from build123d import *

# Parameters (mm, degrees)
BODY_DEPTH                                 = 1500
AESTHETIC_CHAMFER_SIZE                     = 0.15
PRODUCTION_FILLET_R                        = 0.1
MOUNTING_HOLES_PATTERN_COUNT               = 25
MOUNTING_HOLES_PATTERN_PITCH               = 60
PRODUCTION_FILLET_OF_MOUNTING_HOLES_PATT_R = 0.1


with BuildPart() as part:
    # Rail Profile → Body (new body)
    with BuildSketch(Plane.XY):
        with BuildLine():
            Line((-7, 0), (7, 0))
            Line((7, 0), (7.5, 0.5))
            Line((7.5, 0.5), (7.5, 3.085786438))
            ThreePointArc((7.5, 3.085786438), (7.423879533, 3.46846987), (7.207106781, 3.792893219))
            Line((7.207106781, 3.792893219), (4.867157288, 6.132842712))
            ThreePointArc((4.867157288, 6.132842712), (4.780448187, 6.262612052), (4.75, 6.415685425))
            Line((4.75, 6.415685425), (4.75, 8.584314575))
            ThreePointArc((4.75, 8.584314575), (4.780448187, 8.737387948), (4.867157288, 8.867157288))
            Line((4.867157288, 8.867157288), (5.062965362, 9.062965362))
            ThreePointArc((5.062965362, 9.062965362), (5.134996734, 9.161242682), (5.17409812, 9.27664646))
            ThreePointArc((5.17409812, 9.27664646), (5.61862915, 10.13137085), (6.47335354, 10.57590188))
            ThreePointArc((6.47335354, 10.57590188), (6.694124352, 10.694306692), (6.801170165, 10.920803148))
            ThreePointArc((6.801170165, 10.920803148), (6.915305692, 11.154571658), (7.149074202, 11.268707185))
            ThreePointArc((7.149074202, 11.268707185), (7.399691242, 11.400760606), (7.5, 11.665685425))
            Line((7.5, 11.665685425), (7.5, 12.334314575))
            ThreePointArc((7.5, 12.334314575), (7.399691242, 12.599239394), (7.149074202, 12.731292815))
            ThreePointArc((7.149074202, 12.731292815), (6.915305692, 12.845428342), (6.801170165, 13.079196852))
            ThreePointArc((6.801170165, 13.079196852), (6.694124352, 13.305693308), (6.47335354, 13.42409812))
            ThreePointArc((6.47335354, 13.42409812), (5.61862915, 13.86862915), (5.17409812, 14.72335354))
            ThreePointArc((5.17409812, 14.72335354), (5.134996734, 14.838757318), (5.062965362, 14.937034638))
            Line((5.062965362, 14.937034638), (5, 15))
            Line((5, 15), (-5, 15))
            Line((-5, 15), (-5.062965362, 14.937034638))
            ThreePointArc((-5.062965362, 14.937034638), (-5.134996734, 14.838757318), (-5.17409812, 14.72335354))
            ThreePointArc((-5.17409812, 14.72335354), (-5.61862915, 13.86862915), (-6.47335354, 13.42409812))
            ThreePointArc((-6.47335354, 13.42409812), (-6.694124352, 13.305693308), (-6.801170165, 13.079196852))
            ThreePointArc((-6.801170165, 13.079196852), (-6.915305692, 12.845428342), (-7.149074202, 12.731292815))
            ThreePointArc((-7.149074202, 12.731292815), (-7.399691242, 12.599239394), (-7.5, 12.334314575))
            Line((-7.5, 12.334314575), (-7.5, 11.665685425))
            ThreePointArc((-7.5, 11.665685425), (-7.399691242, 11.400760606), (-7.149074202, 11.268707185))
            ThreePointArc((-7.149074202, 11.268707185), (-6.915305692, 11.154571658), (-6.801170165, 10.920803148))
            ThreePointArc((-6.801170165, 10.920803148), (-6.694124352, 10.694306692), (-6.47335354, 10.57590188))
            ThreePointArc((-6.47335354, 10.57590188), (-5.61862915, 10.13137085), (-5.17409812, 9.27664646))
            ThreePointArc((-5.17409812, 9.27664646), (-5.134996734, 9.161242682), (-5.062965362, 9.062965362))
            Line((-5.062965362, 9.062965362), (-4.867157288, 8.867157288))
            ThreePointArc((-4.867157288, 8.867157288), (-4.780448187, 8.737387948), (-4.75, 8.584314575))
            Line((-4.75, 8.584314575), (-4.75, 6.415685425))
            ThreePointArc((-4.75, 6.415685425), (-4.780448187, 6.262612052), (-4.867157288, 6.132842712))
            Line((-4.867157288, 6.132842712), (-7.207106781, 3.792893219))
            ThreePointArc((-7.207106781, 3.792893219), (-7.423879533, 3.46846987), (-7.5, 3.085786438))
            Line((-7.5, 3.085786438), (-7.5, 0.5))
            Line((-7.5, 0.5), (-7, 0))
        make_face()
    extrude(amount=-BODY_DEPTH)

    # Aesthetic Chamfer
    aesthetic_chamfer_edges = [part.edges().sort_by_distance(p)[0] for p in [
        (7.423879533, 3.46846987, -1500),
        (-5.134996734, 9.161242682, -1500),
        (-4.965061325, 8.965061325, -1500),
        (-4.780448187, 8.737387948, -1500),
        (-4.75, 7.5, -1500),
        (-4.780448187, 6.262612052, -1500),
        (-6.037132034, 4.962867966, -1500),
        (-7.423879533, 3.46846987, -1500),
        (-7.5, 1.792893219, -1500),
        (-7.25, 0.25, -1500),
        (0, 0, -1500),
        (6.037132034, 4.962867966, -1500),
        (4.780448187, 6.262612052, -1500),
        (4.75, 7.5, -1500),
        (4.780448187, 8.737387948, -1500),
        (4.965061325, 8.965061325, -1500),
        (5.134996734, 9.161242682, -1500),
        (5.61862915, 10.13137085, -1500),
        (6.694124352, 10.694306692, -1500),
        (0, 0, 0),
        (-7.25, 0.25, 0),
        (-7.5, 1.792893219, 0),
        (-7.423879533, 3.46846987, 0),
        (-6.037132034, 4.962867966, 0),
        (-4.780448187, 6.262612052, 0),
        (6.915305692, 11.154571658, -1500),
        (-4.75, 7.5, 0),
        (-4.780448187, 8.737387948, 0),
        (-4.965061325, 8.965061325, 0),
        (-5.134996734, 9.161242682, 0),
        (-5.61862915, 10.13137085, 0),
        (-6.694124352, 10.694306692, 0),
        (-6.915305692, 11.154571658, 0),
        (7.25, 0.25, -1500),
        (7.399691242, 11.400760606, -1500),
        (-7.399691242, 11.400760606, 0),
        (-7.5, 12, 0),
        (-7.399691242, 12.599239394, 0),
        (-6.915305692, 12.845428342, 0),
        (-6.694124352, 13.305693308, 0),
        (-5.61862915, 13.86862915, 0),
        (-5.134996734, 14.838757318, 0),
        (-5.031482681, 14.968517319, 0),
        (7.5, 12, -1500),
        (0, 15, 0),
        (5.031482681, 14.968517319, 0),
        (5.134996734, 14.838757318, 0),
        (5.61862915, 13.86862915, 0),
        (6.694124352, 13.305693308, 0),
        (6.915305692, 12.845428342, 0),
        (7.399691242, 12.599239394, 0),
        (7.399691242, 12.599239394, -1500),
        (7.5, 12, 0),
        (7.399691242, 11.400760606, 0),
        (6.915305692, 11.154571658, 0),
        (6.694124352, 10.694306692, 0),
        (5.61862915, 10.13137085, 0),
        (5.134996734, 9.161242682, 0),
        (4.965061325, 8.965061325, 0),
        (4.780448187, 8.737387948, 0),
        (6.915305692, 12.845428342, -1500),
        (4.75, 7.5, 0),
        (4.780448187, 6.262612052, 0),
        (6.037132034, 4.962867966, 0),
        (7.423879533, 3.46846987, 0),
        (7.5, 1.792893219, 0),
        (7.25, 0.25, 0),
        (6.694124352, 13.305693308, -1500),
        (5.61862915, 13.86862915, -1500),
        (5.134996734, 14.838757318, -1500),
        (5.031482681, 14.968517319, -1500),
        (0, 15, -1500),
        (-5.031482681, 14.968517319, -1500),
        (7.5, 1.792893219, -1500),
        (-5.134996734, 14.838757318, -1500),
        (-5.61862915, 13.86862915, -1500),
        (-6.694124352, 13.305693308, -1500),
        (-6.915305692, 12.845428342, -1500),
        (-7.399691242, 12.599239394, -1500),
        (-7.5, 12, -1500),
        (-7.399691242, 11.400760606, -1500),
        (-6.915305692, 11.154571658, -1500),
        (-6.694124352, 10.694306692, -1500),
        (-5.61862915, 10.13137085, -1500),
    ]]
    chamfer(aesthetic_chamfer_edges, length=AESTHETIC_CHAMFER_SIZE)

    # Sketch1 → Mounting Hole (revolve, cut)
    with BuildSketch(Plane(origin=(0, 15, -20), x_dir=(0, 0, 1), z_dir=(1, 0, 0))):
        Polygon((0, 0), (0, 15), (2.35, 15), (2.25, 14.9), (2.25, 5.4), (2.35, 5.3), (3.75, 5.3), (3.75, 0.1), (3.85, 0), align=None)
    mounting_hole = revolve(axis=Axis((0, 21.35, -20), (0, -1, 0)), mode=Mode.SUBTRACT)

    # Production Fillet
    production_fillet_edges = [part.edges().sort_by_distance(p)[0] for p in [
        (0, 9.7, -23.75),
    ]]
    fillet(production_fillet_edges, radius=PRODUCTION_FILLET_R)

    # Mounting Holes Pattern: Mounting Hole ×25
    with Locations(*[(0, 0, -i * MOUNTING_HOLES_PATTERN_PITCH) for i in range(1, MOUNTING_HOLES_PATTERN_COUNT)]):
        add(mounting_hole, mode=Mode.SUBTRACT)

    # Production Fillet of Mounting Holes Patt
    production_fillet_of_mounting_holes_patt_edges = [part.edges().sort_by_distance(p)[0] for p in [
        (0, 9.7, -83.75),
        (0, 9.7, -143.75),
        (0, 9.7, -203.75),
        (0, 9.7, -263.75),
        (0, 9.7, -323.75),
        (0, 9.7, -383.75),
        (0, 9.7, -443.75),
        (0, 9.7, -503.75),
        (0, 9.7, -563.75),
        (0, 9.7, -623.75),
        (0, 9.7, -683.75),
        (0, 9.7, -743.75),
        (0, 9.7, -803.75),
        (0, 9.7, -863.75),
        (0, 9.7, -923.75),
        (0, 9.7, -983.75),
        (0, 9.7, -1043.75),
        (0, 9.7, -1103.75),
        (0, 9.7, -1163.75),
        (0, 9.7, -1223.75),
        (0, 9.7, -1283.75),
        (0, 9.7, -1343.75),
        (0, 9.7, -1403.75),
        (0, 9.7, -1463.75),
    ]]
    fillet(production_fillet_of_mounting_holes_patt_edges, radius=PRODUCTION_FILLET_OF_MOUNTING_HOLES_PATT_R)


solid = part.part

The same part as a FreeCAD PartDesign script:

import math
import FreeCAD as App
import Part
import Sketcher
from FreeCAD import Vector


def edges_at(feature, points):
    """Names of the edges that pass closest to the given points."""
    edges = feature.Shape.Edges
    near = lambda p: min(range(len(edges)), key=lambda i: edges[i].distToShape(Part.Vertex(*p))[0])
    return sorted({f"Edge{near(p) + 1}" for p in points})


def add_polygon(sketch, points):
    """Adds a closed chain of lines whose ends are joined by coincident constraints."""
    first, n = sketch.GeometryCount, len(points)
    for a, b in zip(points, points[1:] + points[:1]):
        sketch.addGeometry(Part.LineSegment(App.Vector(*a, 0), App.Vector(*b, 0)), False)
    for i in range(n):
        sketch.addConstraint(Sketcher.Constraint("Coincident", first + i, 2, first + (i + 1) % n, 1))

doc = App.newDocument("Part")
body = doc.addObject("PartDesign::Body", "Body")

# Sketch on XY plane
sketch1 = body.newObject("Sketcher::SketchObject", "Sketch")
sketch1.AttachmentSupport = (doc.getObject("XY_Plane"), [""])
sketch1.MapMode = "FlatFace"
sketch1.addGeometry([
    Part.LineSegment(Vector(-7, 0, 0), Vector(7, 0, 0)),  # 0
    Part.LineSegment(Vector(7, 0, 0), Vector(7.5, 0.5, 0)),  # 1
    Part.LineSegment(Vector(7.5, 0.5, 0), Vector(7.5, 3.09, 0)),  # 2
    Part.ArcOfCircle(Part.Circle(Vector(6.5, 3.09, 0), Vector(0, 0, 1), 1), math.radians(0), math.radians(45)),  # 3
    Part.LineSegment(Vector(7.21, 3.79, 0), Vector(4.87, 6.13, 0)),  # 4
    Part.ArcOfCircle(Part.Circle(Vector(5.15, 6.42, 0), Vector(0, 0, 1), 0.4), math.radians(180), math.radians(225)),  # 5
    Part.LineSegment(Vector(4.75, 6.42, 0), Vector(4.75, 8.58, 0)),  # 6
    Part.ArcOfCircle(Part.Circle(Vector(5.15, 8.58, 0), Vector(0, 0, 1), 0.4), math.radians(135), math.radians(180)),  # 7
    Part.LineSegment(Vector(4.87, 8.87, 0), Vector(5.06, 9.06, 0)),  # 8
    Part.ArcOfCircle(Part.Circle(Vector(4.78, 9.35, 0), Vector(0, 0, 1), 0.4), math.radians(-45), math.radians(-10)),  # 9
    Part.ArcOfCircle(Part.Circle(Vector(6.75, 9, 0), Vector(0, 0, 1), 1.6), math.radians(100), math.radians(170)),  # 10
    Part.ArcOfCircle(Part.Circle(Vector(6.4, 10.97, 0), Vector(0, 0, 1), 0.4), math.radians(-80), math.radians(-7)),  # 11
    Part.ArcOfCircle(Part.Circle(Vector(7.2, 10.87, 0), Vector(0, 0, 1), 0.4), math.radians(97), math.radians(173)),  # 12
    Part.ArcOfCircle(Part.Circle(Vector(7.1, 11.67, 0), Vector(0, 0, 1), 0.4), math.radians(-83), math.radians(0)),  # 13
    Part.LineSegment(Vector(7.5, 11.67, 0), Vector(7.5, 12.33, 0)),  # 14
    Part.ArcOfCircle(Part.Circle(Vector(7.1, 12.33, 0), Vector(0, 0, 1), 0.4), math.radians(0), math.radians(83)),  # 15
    Part.ArcOfCircle(Part.Circle(Vector(7.2, 13.13, 0), Vector(0, 0, 1), 0.4), math.radians(-173), math.radians(-97)),  # 16
    Part.ArcOfCircle(Part.Circle(Vector(6.4, 13.03, 0), Vector(0, 0, 1), 0.4), math.radians(7), math.radians(80)),  # 17
    Part.ArcOfCircle(Part.Circle(Vector(6.75, 15, 0), Vector(0, 0, 1), 1.6), math.radians(-170), math.radians(-100)),  # 18
    Part.ArcOfCircle(Part.Circle(Vector(4.78, 14.65, 0), Vector(0, 0, 1), 0.4), math.radians(10), math.radians(45)),  # 19
    Part.LineSegment(Vector(5.06, 14.94, 0), Vector(5, 15, 0)),  # 20
    Part.LineSegment(Vector(5, 15, 0), Vector(-5, 15, 0)),  # 21
    Part.LineSegment(Vector(-5, 15, 0), Vector(-5.06, 14.94, 0)),  # 22
    Part.ArcOfCircle(Part.Circle(Vector(-4.78, 14.65, 0), Vector(0, 0, 1), 0.4), math.radians(135), math.radians(170)),  # 23
    Part.ArcOfCircle(Part.Circle(Vector(-6.75, 15, 0), Vector(0, 0, 1), 1.6), math.radians(-80), math.radians(-10)),  # 24
    Part.ArcOfCircle(Part.Circle(Vector(-6.4, 13.03, 0), Vector(0, 0, 1), 0.4), math.radians(100), math.radians(173)),  # 25
    Part.ArcOfCircle(Part.Circle(Vector(-7.2, 13.13, 0), Vector(0, 0, 1), 0.4), math.radians(-83), math.radians(-7)),  # 26
    Part.ArcOfCircle(Part.Circle(Vector(-7.1, 12.33, 0), Vector(0, 0, 1), 0.4), math.radians(97), math.radians(180)),  # 27
    Part.LineSegment(Vector(-7.5, 12.33, 0), Vector(-7.5, 11.67, 0)),  # 28
    Part.ArcOfCircle(Part.Circle(Vector(-7.1, 11.67, 0), Vector(0, 0, 1), 0.4), math.radians(180), math.radians(263)),  # 29
    Part.ArcOfCircle(Part.Circle(Vector(-7.2, 10.87, 0), Vector(0, 0, 1), 0.4), math.radians(7), math.radians(83)),  # 30
    Part.ArcOfCircle(Part.Circle(Vector(-6.4, 10.97, 0), Vector(0, 0, 1), 0.4), math.radians(-173), math.radians(-100)),  # 31
    Part.ArcOfCircle(Part.Circle(Vector(-6.75, 9, 0), Vector(0, 0, 1), 1.6), math.radians(10), math.radians(80)),  # 32
    Part.ArcOfCircle(Part.Circle(Vector(-4.78, 9.35, 0), Vector(0, 0, 1), 0.4), math.radians(-170), math.radians(-135)),  # 33
    Part.LineSegment(Vector(-5.06, 9.06, 0), Vector(-4.87, 8.87, 0)),  # 34
    Part.ArcOfCircle(Part.Circle(Vector(-5.15, 8.58, 0), Vector(0, 0, 1), 0.4), math.radians(0), math.radians(45)),  # 35
    Part.LineSegment(Vector(-4.75, 8.58, 0), Vector(-4.75, 6.42, 0)),  # 36
    Part.ArcOfCircle(Part.Circle(Vector(-5.15, 6.42, 0), Vector(0, 0, 1), 0.4), math.radians(-45), math.radians(0)),  # 37
    Part.LineSegment(Vector(-4.87, 6.13, 0), Vector(-7.21, 3.79, 0)),  # 38
    Part.ArcOfCircle(Part.Circle(Vector(-6.5, 3.09, 0), Vector(0, 0, 1), 1), math.radians(135), math.radians(180)),  # 39
    Part.LineSegment(Vector(-7.5, 3.09, 0), Vector(-7.5, 0.5, 0)),  # 40
    Part.LineSegment(Vector(-7.5, 0.5, 0), Vector(-7, 0, 0)),  # 41
], False)
sketch1.addConstraint([
    Sketcher.Constraint("Coincident", 0, 2, 1, 1),
    Sketcher.Constraint("Coincident", 1, 2, 2, 1),
    Sketcher.Constraint("Tangent", 2, 2, 3, 1),
    Sketcher.Constraint("Tangent", 3, 2, 4, 1),
    Sketcher.Constraint("Tangent", 4, 2, 5, 2),
    Sketcher.Constraint("Tangent", 5, 1, 6, 1),
    Sketcher.Constraint("Tangent", 6, 2, 7, 2),
    Sketcher.Constraint("Tangent", 7, 1, 8, 1),
    Sketcher.Constraint("Tangent", 8, 2, 9, 1),
    Sketcher.Constraint("Tangent", 9, 2, 10, 2),
    Sketcher.Constraint("Tangent", 10, 1, 11, 1),
    Sketcher.Constraint("Tangent", 11, 2, 12, 2),
    Sketcher.Constraint("Tangent", 12, 1, 13, 1),
    Sketcher.Constraint("Tangent", 13, 2, 14, 1),
    Sketcher.Constraint("Tangent", 14, 2, 15, 1),
    Sketcher.Constraint("Tangent", 15, 2, 16, 2),
    Sketcher.Constraint("Tangent", 16, 1, 17, 1),
    Sketcher.Constraint("Tangent", 17, 2, 18, 2),
    Sketcher.Constraint("Tangent", 18, 1, 19, 1),
    Sketcher.Constraint("Tangent", 19, 2, 20, 1),
    Sketcher.Constraint("Coincident", 20, 2, 21, 1),
    Sketcher.Constraint("Coincident", 21, 2, 22, 1),
    Sketcher.Constraint("Tangent", 22, 2, 23, 1),
    Sketcher.Constraint("Tangent", 23, 2, 24, 2),
    Sketcher.Constraint("Tangent", 24, 1, 25, 1),
    Sketcher.Constraint("Tangent", 25, 2, 26, 2),
    Sketcher.Constraint("Tangent", 26, 1, 27, 1),
    Sketcher.Constraint("Tangent", 27, 2, 28, 1),
    Sketcher.Constraint("Tangent", 28, 2, 29, 1),
    Sketcher.Constraint("Tangent", 29, 2, 30, 2),
    Sketcher.Constraint("Tangent", 30, 1, 31, 1),
    Sketcher.Constraint("Tangent", 31, 2, 32, 2),
    Sketcher.Constraint("Tangent", 32, 1, 33, 1),
    Sketcher.Constraint("Tangent", 33, 2, 34, 1),
    Sketcher.Constraint("Tangent", 34, 2, 35, 2),
    Sketcher.Constraint("Tangent", 35, 1, 36, 1),
    Sketcher.Constraint("Tangent", 36, 2, 37, 2),
    Sketcher.Constraint("Tangent", 37, 1, 38, 1),
    Sketcher.Constraint("Tangent", 38, 2, 39, 1),
    Sketcher.Constraint("Tangent", 39, 2, 40, 1),
    Sketcher.Constraint("Coincident", 40, 2, 41, 1),
    Sketcher.Constraint("Coincident", 41, 2, 0, 1),
    Sketcher.Constraint("Horizontal", 0),
    Sketcher.Constraint("Vertical", 2),
    Sketcher.Constraint("Vertical", 6),
    Sketcher.Constraint("Vertical", 14),
    Sketcher.Constraint("Horizontal", 21),
    Sketcher.Constraint("Vertical", 28),
    Sketcher.Constraint("Vertical", 36),
    Sketcher.Constraint("Vertical", 40),
    Sketcher.Constraint("Equal", 5, 7),
    Sketcher.Constraint("Equal", 7, 9),
    Sketcher.Constraint("Equal", 9, 11),
    Sketcher.Constraint("Equal", 11, 12),
    Sketcher.Constraint("Equal", 12, 13),
    Sketcher.Constraint("Equal", 13, 15),
    Sketcher.Constraint("Equal", 15, 16),
    Sketcher.Constraint("Equal", 16, 17),
    Sketcher.Constraint("Equal", 10, 18),
    Sketcher.Constraint("Equal", 17, 19),
    Sketcher.Constraint("Equal", 19, 23),
    Sketcher.Constraint("Equal", 18, 24),
    Sketcher.Constraint("Equal", 23, 25),
    Sketcher.Constraint("Equal", 25, 26),
    Sketcher.Constraint("Equal", 26, 27),
    Sketcher.Constraint("Equal", 27, 29),
    Sketcher.Constraint("Equal", 29, 30),
    Sketcher.Constraint("Equal", 30, 31),
    Sketcher.Constraint("Equal", 24, 32),
    Sketcher.Constraint("Equal", 31, 33),
    Sketcher.Constraint("Equal", 33, 35),
    Sketcher.Constraint("Equal", 35, 37),
    Sketcher.Constraint("Equal", 3, 39),
    Sketcher.Constraint("Symmetric", 0, 2, 41, 2, -1, 1),
    Sketcher.Constraint("Symmetric", 19, 3, 23, 3, -2),
    Sketcher.Constraint("Symmetric", 17, 3, 25, 3, -2),
    Sketcher.Constraint("Symmetric", 15, 3, 27, 3, -2),
    Sketcher.Constraint("Symmetric", 12, 3, 30, 3, -2),
    Sketcher.Constraint("Symmetric", 10, 3, 32, 3, -2),
    Sketcher.Constraint("Symmetric", 7, 3, 35, 3, -2),
    Sketcher.Constraint("Symmetric", 3, 3, 39, 3, -2),
    Sketcher.Constraint("Perpendicular", 1, 4),
    Sketcher.Constraint("Perpendicular", 4, 8),
    Sketcher.Constraint("Perpendicular", 8, 20),
    Sketcher.Constraint("Perpendicular", 20, 22),
    Sketcher.Constraint("Perpendicular", 22, 34),
    Sketcher.Constraint("Perpendicular", 34, 38),
    Sketcher.Constraint("Perpendicular", 38, 41),
    Sketcher.Constraint("Horizontal", 9, 3, 33, 3),
    Sketcher.Constraint("Horizontal", 24, 3, 20, 2),
    Sketcher.Constraint("Vertical", 12, 3, 16, 3),
    Sketcher.Constraint("Vertical", 11, 3, 17, 3),
    Sketcher.Constraint("Vertical", 10, 3, 18, 3),
    Sketcher.Constraint("Vertical", 9, 3, 19, 3),
    Sketcher.Constraint("Vertical", 2, 2, 13, 2),
    Sketcher.Constraint("Radius", 3, 1.0),
    Sketcher.Constraint("Radius", 5, 0.4),
    Sketcher.Constraint("Radius", 10, 1.6),
    Sketcher.Constraint("DistanceX", 0, 1, 0, 2, 14.0),
    Sketcher.Constraint("DistanceX", 21, 2, 21, 1, 10.0),
    Sketcher.Constraint("DistanceY", -1, 1, 10, 3, 9.0),
    Sketcher.Constraint("DistanceY", -1, 1, 18, 3, 15.0),
    Sketcher.Constraint("DistanceX", -1, 1, 3, 3, 6.5),
    Sketcher.Constraint("DistanceX", -1, 1, 5, 3, 5.15),
    Sketcher.Constraint("DistanceX", -1, 1, 10, 3, 6.75),
    Sketcher.Constraint("DistanceY", 6, 1, 6, 2, 2.168629),
    Sketcher.Constraint("DistanceY", 14, 1, 14, 2, 0.668629),
    Sketcher.Constraint("DistanceY", -1, 1, 10, 1, 10.575902),
])
pad1 = body.newObject("PartDesign::Pad", "Pad")
pad1.Profile = sketch1
pad1.Length = 1500
pad1.Reversed = True
doc.recompute()

chamfer = body.newObject("PartDesign::Chamfer", "Chamfer")
chamfer.Base = (pad1, edges_at(pad1, [
    (7.424, 3.468, -1500),
    (-5.135, 9.161, -1500),
    (-4.965, 8.965, -1500),
    (-4.78, 8.737, -1500),
    (-4.75, 7.5, -1500),
    (-4.78, 6.263, -1500),
    (-6.037, 4.963, -1500),
    (-7.424, 3.468, -1500),
    (-7.5, 1.793, -1500),
    (-7.25, 0.25, -1500),
    (0, 0, -1500),
    (6.037, 4.963, -1500),
    (4.78, 6.263, -1500),
    (4.75, 7.5, -1500),
    (4.78, 8.737, -1500),
    (4.965, 8.965, -1500),
    (5.135, 9.161, -1500),
    (5.619, 10.131, -1500),
    (6.694, 10.694, -1500),
    (0, 0, 0),
    (-7.25, 0.25, 0),
    (-7.5, 1.793, 0),
    (-7.424, 3.468, 0),
    (-6.037, 4.963, 0),
    (-4.78, 6.263, 0),
    (6.915, 11.155, -1500),
    (-4.75, 7.5, 0),
    (-4.78, 8.737, 0),
    (-4.965, 8.965, 0),
    (-5.135, 9.161, 0),
    (-5.619, 10.131, 0),
    (-6.694, 10.694, 0),
    (-6.915, 11.155, 0),
    (7.25, 0.25, -1500),
    (7.4, 11.401, -1500),
    (-7.4, 11.401, 0),
    (-7.5, 12, 0),
    (-7.4, 12.599, 0),
    (-6.915, 12.845, 0),
    (-6.694, 13.306, 0),
    (-5.619, 13.869, 0),
    (-5.135, 14.839, 0),
    (-5.031, 14.969, 0),
    (7.5, 12, -1500),
    (0, 15, 0),
    (5.031, 14.969, 0),
    (5.135, 14.839, 0),
    (5.619, 13.869, 0),
    (6.694, 13.306, 0),
    (6.915, 12.845, 0),
    (7.4, 12.599, 0),
    (7.4, 12.599, -1500),
    (7.5, 12, 0),
    (7.4, 11.401, 0),
    (6.915, 11.155, 0),
    (6.694, 10.694, 0),
    (5.619, 10.131, 0),
    (5.135, 9.161, 0),
    (4.965, 8.965, 0),
    (4.78, 8.737, 0),
    (6.915, 12.845, -1500),
    (4.75, 7.5, 0),
    (4.78, 6.263, 0),
    (6.037, 4.963, 0),
    (7.424, 3.468, 0),
    (7.5, 1.793, 0),
    (7.25, 0.25, 0),
    (6.694, 13.306, -1500),
    (5.619, 13.869, -1500),
    (5.135, 14.839, -1500),
    (5.031, 14.969, -1500),
    (0, 15, -1500),
    (-5.031, 14.969, -1500),
    (7.5, 1.793, -1500),
    (-5.135, 14.839, -1500),
    (-5.619, 13.869, -1500),
    (-6.694, 13.306, -1500),
    (-6.915, 12.845, -1500),
    (-7.4, 12.599, -1500),
    (-7.5, 12, -1500),
    (-7.4, 11.401, -1500),
    (-6.915, 11.155, -1500),
    (-6.694, 10.694, -1500),
    (-5.619, 10.131, -1500),
]))
chamfer.Size = 0.15

# Sketch on YZ plane
sketch2 = body.newObject("Sketcher::SketchObject", "Sketch001")
sketch2.AttachmentSupport = (doc.getObject("YZ_Plane"), [""])
sketch2.MapMode = "FlatFace"
add_polygon(sketch2, [(0, -20), (15, -20), (15, -16.15), (14.9, -16.25), (9.7, -16.25), (9.7, -17.65), (9.6, -17.75), (0.1, -17.75), (0, -17.65)])  # lines 0-8
sketch2.addGeometry(Part.LineSegment(Vector(15, -20, 0), Vector(0, -20, 0)), True)  # axis
sketch2.addConstraint([
    Sketcher.Constraint("Horizontal", 0),
    Sketcher.Constraint("Vertical", 1),
    Sketcher.Constraint("Horizontal", 3),
    Sketcher.Constraint("Vertical", 4),
    Sketcher.Constraint("Horizontal", 6),
    Sketcher.Constraint("Vertical", 8),
    Sketcher.Constraint("Horizontal", 9),
    Sketcher.Constraint("Coincident", 9, 1, 0, 2),
    Sketcher.Constraint("PointOnObject", 7, 2, -2),
    Sketcher.Constraint("PointOnObject", 9, 2, -2),
    Sketcher.Constraint("Parallel", 2, 5),
    Sketcher.Constraint("Perpendicular", 5, 7),
    Sketcher.Constraint("Horizontal", 4, 2, 7, 2),
    Sketcher.Constraint("Equal", 2, 5),
    Sketcher.Constraint("Equal", 5, 7),
    Sketcher.Constraint("DistanceX", 0, 1, 0, 2, 15.0),
    Sketcher.Constraint("DistanceX", 3, 2, 3, 1, 5.2),
    Sketcher.Constraint("DistanceX", 6, 2, 6, 1, 9.5),
    Sketcher.Constraint("DistanceY", 4, 2, 4, 1, 1.4),
    Sketcher.Constraint("DistanceY", 0, 2, -1, 1, 20.0),
    Sketcher.Constraint("DistanceY", 1, 1, 1, 2, 3.85),
])
groove = body.newObject("PartDesign::Groove", "Groove")
groove.Profile = sketch2
groove.ReferenceAxis = (sketch2, ["Axis0"])
groove.Angle = 360
doc.recompute()

fillet = body.newObject("PartDesign::Fillet", "Fillet")
fillet.Base = (groove, edges_at(groove, [(0, 9.7, -23.75)]))
fillet.Radius = 0.1
doc.recompute()

linearpattern = body.newObject("PartDesign::LinearPattern", "LinearPattern")
linearpattern.Originals = [groove]
linearpattern.Direction = (doc.getObject("Z_Axis"), [""])
linearpattern.Mode = "offset"
linearpattern.Offset = 60
linearpattern.Occurrences = 25
linearpattern.Reversed = True
body.Tip = linearpattern
doc.recompute()

fillet2 = body.newObject("PartDesign::Fillet", "Fillet001")
fillet2.Base = (linearpattern, edges_at(linearpattern, [
    (0, 9.7, -83.75),
    (0, 9.7, -143.75),
    (0, 9.7, -203.75),
    (0, 9.7, -263.75),
    (0, 9.7, -323.75),
    (0, 9.7, -383.75),
    (0, 9.7, -443.75),
    (0, 9.7, -503.75),
    (0, 9.7, -563.75),
    (0, 9.7, -623.75),
    (0, 9.7, -683.75),
    (0, 9.7, -743.75),
    (0, 9.7, -803.75),
    (0, 9.7, -863.75),
    (0, 9.7, -923.75),
    (0, 9.7, -983.75),
    (0, 9.7, -1043.75),
    (0, 9.7, -1103.75),
    (0, 9.7, -1163.75),
    (0, 9.7, -1223.75),
    (0, 9.7, -1283.75),
    (0, 9.7, -1343.75),
    (0, 9.7, -1403.75),
    (0, 9.7, -1463.75),
]))
fillet2.Radius = 0.1

doc.recompute()
